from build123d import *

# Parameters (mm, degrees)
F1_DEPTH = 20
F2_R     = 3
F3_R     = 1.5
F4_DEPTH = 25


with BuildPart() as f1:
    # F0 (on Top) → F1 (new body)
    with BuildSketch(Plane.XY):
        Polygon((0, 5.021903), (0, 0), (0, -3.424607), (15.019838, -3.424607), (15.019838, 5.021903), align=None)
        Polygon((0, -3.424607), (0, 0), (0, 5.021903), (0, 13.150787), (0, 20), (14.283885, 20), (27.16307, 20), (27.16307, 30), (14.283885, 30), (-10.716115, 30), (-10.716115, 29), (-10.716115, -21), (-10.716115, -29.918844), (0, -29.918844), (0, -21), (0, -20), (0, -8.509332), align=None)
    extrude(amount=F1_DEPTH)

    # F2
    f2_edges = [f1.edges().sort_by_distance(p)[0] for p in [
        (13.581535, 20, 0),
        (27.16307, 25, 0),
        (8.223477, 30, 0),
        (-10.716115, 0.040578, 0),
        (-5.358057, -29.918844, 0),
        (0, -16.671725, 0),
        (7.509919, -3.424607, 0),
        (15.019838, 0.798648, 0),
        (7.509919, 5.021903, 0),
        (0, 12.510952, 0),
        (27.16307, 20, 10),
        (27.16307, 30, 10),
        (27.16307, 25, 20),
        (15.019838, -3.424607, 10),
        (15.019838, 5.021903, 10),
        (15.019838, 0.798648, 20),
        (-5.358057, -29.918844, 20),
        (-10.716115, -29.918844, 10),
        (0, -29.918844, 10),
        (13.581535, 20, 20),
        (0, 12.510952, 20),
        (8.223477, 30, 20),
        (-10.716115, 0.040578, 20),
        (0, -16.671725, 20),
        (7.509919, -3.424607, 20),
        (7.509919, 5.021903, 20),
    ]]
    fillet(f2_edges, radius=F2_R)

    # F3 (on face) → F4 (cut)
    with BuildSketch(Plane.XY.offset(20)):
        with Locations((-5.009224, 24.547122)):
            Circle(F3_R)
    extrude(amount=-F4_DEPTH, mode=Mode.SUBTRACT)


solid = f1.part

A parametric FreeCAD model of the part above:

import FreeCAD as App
import Part
import Sketcher


def edges_at(feature, points):
    """Names of the edges that pass closest to the given points."""
    edges = feature.Shape.Edges
    near = lambda p: min(range(len(edges)), key=lambda i: edges[i].distToShape(Part.Vertex(*p))[0])
    return sorted({f"Edge{near(p) + 1}" for p in points})


def add_polygon(sketch, points):
    """Adds a closed chain of lines whose ends are joined by coincident constraints."""
    first, n = sketch.GeometryCount, len(points)
    for a, b in zip(points, points[1:] + points[:1]):
        sketch.addGeometry(Part.LineSegment(App.Vector(*a, 0), App.Vector(*b, 0)), False)
    for i in range(n):
        sketch.addConstraint(Sketcher.Constraint("Coincident", first + i, 2, first + (i + 1) % n, 1))

doc = App.newDocument("Part")
body = doc.addObject("PartDesign::Body", "Body")

# Sketch on XY plane
sketch1 = body.newObject("Sketcher::SketchObject", "Sketch")
sketch1.AttachmentSupport = (doc.getObject("XY_Plane"), [""])
sketch1.MapMode = "FlatFace"
add_polygon(sketch1, [(0, -3), (15, -3), (15, 5), (0, 5), (0, 20), (27, 20), (27, 30), (-11, 30), (-11, -30), (0, -30)])  # lines 0-9
sketch1.addConstraint(Sketcher.Constraint("Horizontal", 0))
sketch1.addConstraint(Sketcher.Constraint("Vertical", 1))
sketch1.addConstraint(Sketcher.Constraint("Horizontal", 2))
sketch1.addConstraint(Sketcher.Constraint("Vertical", 3))
sketch1.addConstraint(Sketcher.Constraint("Horizontal", 4))
sketch1.addConstraint(Sketcher.Constraint("Vertical", 5))
sketch1.addConstraint(Sketcher.Constraint("Horizontal", 6))
sketch1.addConstraint(Sketcher.Constraint("Vertical", 7))
sketch1.addConstraint(Sketcher.Constraint("Horizontal", 8))
sketch1.addConstraint(Sketcher.Constraint("Vertical", 9))
sketch1.addConstraint(Sketcher.Constraint("PointOnObject", 2, 2, -2))
sketch1.addConstraint(Sketcher.Constraint("PointOnObject", 8, 2, -2))
sketch1.addConstraint(Sketcher.Constraint("DistanceY", 5, 1, 5, 2, 10.0))
sketch1.addConstraint(Sketcher.Constraint("DistanceY", -1, 1, 3, 2, 20.0))
sketch1.addConstraint(Sketcher.Constraint("DistanceX", 4, 1, 4, 2, 27.16307))
sketch1.addConstraint(Sketcher.Constraint("DistanceY", 1, 1, 1, 2, 8.44651))
sketch1.addConstraint(Sketcher.Constraint("DistanceX", 0, 1, 0, 2, 15.019838))
sketch1.addConstraint(Sketcher.Constraint("DistanceX", 6, 2, 6, 1, 37.879185))
sketch1.addConstraint(Sketcher.Constraint("DistanceY", 3, 1, 3, 2, 14.978097))
sketch1.addConstraint(Sketcher.Constraint("DistanceY", 7, 2, 7, 1, 59.918844))
pad1 = body.newObject("PartDesign::Pad", "Pad")
pad1.Profile = sketch1
pad1.Length = 20
doc.recompute()

fillet = body.newObject("PartDesign::Fillet", "Fillet")
fillet.Base = (pad1, edges_at(pad1, [
    (13.582, 20, 0),
    (27.163, 25, 0),
    (8.223, 30, 0),
    (-10.716, 0.041, 0),
    (-5.358, -29.919, 0),
    (0, -16.672, 0),
    (7.51, -3.425, 0),
    (15.02, 0.799, 0),
    (7.51, 5.022, 0),
    (0, 12.511, 0),
    (27.163, 20, 10),
    (27.163, 30, 10),
    (27.163, 25, 20),
    (15.02, -3.425, 10),
    (15.02, 5.022, 10),
    (15.02, 0.799, 20),
    (-5.358, -29.919, 20),
    (-10.716, -29.919, 10),
    (0, -29.919, 10),
    (13.582, 20, 20),
    (0, 12.511, 20),
    (8.223, 30, 20),
    (-10.716, 0.041, 20),
    (0, -16.672, 20),
    (7.51, -3.425, 20),
    (7.51, 5.022, 20),
]))
fillet.Radius = 3

# Sketch on XY plane
sketch2 = body.newObject("Sketcher::SketchObject", "Sketch001")
sketch2.AttachmentSupport = (doc.getObject("XY_Plane"), [""])
sketch2.MapMode = "FlatFace"
sketch2.AttachmentOffset = App.Placement(App.Vector(0, 0, 20), App.Rotation())
sketch2.addGeometry(Part.Circle(App.Vector(-5, 24.5, 0), App.Vector(0, 0, 1), 1.5), False)
sketch2.addConstraint(Sketcher.Constraint("Diameter", 0, 3.0))
sketch2.addConstraint(Sketcher.Constraint("DistanceX", 0, 3, -1, 1, 5.009224))
sketch2.addConstraint(Sketcher.Constraint("DistanceY", -1, 1, 0, 3, 24.547122))
pocket1 = body.newObject("PartDesign::Pocket", "Pocket")
pocket1.Profile = sketch2
pocket1.Length = 25

doc.recompute()
